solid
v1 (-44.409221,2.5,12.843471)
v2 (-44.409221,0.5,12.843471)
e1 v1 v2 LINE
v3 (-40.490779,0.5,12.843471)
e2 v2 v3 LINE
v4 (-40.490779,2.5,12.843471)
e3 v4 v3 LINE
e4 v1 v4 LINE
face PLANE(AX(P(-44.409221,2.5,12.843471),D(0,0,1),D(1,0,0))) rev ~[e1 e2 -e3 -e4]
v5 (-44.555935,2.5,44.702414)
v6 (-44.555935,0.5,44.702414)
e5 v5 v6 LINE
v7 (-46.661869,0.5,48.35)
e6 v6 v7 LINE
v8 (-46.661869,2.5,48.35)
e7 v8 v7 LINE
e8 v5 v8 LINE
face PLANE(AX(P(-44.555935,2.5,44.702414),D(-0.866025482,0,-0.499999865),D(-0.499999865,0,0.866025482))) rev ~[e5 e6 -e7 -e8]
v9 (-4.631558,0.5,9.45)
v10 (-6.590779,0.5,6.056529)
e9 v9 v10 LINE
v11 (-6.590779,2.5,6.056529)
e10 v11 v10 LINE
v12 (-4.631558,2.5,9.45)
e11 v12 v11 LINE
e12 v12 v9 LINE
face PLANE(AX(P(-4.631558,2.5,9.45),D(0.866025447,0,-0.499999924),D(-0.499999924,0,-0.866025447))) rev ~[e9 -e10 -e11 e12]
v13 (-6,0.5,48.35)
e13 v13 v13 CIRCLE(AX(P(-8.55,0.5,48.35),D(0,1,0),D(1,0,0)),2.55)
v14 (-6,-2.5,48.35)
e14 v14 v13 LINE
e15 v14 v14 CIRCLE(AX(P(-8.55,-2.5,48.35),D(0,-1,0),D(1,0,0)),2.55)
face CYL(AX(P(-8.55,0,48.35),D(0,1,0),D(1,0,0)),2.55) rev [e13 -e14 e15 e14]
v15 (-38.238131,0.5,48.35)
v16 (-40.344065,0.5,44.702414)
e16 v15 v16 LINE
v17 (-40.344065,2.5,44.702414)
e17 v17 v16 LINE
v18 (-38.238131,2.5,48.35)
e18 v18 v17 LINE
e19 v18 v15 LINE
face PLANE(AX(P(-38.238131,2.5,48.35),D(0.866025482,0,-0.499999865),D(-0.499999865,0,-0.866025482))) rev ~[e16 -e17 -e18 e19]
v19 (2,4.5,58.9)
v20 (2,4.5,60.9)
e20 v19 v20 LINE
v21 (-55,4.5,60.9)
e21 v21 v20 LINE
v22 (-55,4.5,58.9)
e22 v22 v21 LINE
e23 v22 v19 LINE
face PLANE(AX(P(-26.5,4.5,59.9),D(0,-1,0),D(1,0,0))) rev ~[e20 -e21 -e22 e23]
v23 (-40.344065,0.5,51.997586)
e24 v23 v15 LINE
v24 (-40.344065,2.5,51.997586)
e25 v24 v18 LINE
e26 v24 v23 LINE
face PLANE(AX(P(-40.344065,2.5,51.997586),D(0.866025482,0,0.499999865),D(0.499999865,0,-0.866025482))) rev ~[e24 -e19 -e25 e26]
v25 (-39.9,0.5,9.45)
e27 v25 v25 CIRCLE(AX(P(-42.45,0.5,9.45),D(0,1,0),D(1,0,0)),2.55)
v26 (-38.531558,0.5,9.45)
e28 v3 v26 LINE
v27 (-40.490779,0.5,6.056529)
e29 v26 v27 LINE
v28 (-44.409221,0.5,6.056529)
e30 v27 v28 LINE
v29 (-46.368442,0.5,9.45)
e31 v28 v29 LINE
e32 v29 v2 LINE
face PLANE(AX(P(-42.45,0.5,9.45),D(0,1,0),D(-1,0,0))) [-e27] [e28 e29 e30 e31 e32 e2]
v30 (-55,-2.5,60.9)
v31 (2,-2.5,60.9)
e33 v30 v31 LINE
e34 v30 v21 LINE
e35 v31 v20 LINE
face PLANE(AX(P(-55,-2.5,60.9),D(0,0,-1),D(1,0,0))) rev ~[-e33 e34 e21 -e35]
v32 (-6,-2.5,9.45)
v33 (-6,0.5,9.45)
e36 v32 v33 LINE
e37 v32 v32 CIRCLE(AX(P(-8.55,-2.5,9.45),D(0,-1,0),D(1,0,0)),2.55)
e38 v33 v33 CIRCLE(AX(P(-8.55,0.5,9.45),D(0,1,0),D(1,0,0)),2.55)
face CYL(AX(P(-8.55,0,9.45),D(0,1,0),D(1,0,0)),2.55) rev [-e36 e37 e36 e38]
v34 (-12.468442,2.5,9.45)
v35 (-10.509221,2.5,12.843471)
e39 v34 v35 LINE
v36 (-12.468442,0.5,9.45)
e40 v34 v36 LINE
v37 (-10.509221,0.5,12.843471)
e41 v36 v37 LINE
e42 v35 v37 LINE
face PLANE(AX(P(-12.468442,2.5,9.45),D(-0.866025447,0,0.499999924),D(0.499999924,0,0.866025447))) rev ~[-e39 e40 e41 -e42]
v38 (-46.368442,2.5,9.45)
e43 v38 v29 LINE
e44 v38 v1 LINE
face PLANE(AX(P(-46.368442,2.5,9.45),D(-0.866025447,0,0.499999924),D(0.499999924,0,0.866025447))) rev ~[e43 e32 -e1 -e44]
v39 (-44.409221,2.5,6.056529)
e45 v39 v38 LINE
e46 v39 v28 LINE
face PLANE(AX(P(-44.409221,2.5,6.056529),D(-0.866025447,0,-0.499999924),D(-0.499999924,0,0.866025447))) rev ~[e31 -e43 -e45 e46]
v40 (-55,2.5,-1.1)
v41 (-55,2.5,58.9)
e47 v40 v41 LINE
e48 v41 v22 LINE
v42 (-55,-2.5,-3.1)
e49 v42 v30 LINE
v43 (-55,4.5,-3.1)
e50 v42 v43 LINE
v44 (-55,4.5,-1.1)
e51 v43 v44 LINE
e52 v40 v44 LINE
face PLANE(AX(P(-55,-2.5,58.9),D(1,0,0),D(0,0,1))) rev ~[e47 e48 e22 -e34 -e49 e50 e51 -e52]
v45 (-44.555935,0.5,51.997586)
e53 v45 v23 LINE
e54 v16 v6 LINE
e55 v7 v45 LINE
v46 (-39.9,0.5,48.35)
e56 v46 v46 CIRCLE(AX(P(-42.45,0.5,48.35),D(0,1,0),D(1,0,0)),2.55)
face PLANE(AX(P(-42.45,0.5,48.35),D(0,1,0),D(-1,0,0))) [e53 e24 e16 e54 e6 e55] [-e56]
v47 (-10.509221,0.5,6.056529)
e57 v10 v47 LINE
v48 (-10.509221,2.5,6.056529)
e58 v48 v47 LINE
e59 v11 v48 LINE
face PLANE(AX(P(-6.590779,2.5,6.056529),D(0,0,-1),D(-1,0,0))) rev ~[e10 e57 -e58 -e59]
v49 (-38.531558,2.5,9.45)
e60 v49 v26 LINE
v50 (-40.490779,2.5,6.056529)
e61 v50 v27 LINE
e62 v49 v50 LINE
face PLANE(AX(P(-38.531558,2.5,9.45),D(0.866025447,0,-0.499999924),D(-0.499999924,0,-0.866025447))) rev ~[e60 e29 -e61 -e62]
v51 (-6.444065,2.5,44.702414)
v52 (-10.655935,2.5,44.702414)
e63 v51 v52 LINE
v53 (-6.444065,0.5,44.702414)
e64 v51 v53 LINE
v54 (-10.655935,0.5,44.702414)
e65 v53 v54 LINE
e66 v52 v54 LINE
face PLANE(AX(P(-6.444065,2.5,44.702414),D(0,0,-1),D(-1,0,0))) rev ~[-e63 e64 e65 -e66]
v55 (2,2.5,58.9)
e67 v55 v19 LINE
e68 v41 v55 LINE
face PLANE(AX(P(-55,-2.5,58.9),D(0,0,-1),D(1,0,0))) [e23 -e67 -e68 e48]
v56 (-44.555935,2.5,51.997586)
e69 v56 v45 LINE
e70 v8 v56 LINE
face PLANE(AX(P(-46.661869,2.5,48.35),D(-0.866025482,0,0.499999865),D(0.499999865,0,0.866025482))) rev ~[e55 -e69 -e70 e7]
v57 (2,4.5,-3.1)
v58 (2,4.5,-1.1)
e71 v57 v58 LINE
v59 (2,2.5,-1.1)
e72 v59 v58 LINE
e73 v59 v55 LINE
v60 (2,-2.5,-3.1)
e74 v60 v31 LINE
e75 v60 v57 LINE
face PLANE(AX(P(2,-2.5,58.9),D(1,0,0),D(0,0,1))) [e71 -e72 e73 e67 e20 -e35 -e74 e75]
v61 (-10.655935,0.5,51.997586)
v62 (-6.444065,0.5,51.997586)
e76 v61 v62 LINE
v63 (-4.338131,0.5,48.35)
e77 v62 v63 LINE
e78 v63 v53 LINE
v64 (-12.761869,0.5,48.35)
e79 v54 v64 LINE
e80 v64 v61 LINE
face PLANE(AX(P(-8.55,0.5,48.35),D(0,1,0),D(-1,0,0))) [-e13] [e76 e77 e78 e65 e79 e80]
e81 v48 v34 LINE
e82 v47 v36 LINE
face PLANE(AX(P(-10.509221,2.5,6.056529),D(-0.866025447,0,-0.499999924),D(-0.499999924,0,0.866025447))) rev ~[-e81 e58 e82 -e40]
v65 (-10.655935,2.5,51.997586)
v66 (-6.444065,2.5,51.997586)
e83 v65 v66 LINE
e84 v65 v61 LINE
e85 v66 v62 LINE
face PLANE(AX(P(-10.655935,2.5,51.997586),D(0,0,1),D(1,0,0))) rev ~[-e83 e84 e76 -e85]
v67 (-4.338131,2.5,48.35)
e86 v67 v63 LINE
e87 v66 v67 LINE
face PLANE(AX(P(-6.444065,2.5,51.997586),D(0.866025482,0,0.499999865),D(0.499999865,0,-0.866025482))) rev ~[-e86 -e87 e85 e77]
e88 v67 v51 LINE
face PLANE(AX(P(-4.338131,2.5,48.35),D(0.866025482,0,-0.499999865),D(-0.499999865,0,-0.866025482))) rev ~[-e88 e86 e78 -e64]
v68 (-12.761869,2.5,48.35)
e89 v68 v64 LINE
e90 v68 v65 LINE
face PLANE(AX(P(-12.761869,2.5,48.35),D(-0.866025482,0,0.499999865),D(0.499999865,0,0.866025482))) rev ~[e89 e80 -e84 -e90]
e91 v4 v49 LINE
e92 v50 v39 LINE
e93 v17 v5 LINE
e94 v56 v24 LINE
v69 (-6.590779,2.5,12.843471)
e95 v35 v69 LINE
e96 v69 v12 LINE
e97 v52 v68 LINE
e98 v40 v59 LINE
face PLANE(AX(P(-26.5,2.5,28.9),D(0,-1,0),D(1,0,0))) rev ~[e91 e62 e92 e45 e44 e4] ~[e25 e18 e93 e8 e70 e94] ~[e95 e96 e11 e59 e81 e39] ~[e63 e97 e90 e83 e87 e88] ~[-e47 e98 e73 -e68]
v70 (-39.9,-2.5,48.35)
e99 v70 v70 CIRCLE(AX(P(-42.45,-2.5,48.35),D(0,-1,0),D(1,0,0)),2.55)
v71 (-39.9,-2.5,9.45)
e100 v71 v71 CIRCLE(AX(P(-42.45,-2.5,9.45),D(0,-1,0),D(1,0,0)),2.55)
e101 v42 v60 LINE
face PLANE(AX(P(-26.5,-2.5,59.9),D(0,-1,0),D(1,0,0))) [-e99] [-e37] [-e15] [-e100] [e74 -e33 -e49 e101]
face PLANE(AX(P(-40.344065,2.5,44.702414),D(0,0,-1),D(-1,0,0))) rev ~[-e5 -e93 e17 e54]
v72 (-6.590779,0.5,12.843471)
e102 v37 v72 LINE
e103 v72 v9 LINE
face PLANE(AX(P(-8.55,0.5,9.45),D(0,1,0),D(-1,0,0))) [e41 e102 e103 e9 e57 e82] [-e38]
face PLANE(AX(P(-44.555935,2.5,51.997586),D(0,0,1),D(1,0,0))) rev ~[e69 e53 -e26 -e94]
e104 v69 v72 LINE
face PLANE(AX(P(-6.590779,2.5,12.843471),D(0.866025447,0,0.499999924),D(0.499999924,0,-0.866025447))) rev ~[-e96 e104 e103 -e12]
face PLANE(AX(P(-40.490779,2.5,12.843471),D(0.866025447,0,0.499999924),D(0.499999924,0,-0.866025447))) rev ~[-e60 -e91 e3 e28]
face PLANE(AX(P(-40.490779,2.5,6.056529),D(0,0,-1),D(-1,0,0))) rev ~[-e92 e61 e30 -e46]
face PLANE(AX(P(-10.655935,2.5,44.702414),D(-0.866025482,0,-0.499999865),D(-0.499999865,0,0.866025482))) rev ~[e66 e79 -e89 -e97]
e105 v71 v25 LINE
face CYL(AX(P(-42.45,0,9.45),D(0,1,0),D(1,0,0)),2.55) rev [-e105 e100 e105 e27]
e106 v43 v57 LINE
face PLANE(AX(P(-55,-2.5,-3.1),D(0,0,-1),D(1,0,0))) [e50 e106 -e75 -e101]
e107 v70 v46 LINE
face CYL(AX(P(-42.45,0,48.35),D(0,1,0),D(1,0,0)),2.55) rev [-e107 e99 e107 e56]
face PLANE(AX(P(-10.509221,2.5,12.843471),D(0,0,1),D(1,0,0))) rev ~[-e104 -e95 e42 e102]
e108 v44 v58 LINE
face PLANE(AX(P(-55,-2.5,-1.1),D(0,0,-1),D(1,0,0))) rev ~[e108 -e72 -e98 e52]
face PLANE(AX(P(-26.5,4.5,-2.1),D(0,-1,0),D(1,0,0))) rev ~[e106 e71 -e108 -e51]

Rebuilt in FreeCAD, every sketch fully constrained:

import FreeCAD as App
import Part
import Sketcher
from FreeCAD import Vector
Q = App.Units.Quantity

doc = App.newDocument("Part")
body = doc.addObject("PartDesign::Body", "Body")

sketch1 = body.newObject("Sketcher::SketchObject", "Sketch")
sketch1.AttachmentSupport = (doc.getObject("XZ_Plane"), [""])
sketch1.MapMode = "FlatFace"
sketch1.addGeometry([
    Part.LineSegment(Vector(-55, 58.9, 0), Vector(-55, -1.1, 0)),
    Part.LineSegment(Vector(-55, -1.1, 0), Vector(2, -1.1, 0)),
    Part.LineSegment(Vector(2, -1.1, 0), Vector(2, 58.9, 0)),
    Part.LineSegment(Vector(2, 58.9, 0), Vector(-55, 58.9, 0)),
    Part.Circle(Vector(-42.45, 9.45, 0), Vector(0, 0, 1), 2.55),
    Part.Circle(Vector(-8.55, 9.45, 0), Vector(0, 0, 1), 2.55),
    Part.Circle(Vector(-42.45, 48.35, 0), Vector(0, 0, 1), 2.55),
    Part.Circle(Vector(-8.55, 48.35, 0), Vector(0, 0, 1), 2.55),
], False)
sketch1.addConstraint([
    Sketcher.Constraint("Coincident", 0, 2, 1, 1),
    Sketcher.Constraint("Coincident", 1, 2, 2, 1),
    Sketcher.Constraint("Coincident", 2, 2, 3, 1),
    Sketcher.Constraint("Coincident", 3, 2, 0, 1),
    Sketcher.Constraint("Vertical", 0),
    Sketcher.Constraint("Horizontal", 1),
    Sketcher.Constraint("Vertical", 2),
    Sketcher.Constraint("Horizontal", 3),
    Sketcher.Constraint("Equal", 4, 5),
    Sketcher.Constraint("Equal", 5, 6),
    Sketcher.Constraint("Equal", 6, 7),
    Sketcher.Constraint("Horizontal", 4, 3, 5, 3),
    Sketcher.Constraint("Horizontal", 6, 3, 7, 3),
    Sketcher.Constraint("Vertical", 4, 3, 6, 3),
    Sketcher.Constraint("Vertical", 5, 3, 7, 3),
    Sketcher.Constraint("Diameter", 4, 5.1),
    Sketcher.Constraint("DistanceX", 1, 1, 1, 2, 57.0),
    Sketcher.Constraint("DistanceY", 0, 2, 0, 1, 60.0),
    Sketcher.Constraint("DistanceX", 0, 2, -1, 1, 55.0),
    Sketcher.Constraint("DistanceY", 0, 2, -1, 1, 1.1),
    Sketcher.Constraint("DistanceX", 4, 3, 5, 3, 33.9),
    Sketcher.Constraint("DistanceY", 4, 3, 6, 3, 38.9),
    Sketcher.Constraint("DistanceX", 4, 3, -1, 1, 42.45),
    Sketcher.Constraint("DistanceY", -1, 1, 4, 3, 9.45),
])
pad1 = body.newObject("PartDesign::Pad", "Pad")
pad1.Profile = sketch1
pad1.Length = 5
pad1.Midplane = True

sketch2 = body.newObject("Sketcher::SketchObject", "Sketch001")
sketch2.AttachmentSupport = (doc.getObject("XZ_Plane"), [""])
sketch2.MapMode = "FlatFace"
sketch2.AttachmentOffset = App.Placement(Vector(0, 0, 2.5), App.Rotation())
sketch2.addGeometry([
    Part.LineSegment(Vector(-55, 60.9, 0), Vector(-55, 58.9, 0)),
    Part.LineSegment(Vector(-55, 58.9, 0), Vector(2, 58.9, 0)),
    Part.LineSegment(Vector(2, 58.9, 0), Vector(2, 60.9, 0)),
    Part.LineSegment(Vector(2, 60.9, 0), Vector(-55, 60.9, 0)),
    Part.LineSegment(Vector(-55, -1.1, 0), Vector(-55, -3.1, 0)),
    Part.LineSegment(Vector(-55, -3.1, 0), Vector(2, -3.1, 0)),
    Part.LineSegment(Vector(2, -3.1, 0), Vector(2, -1.1, 0)),
    Part.LineSegment(Vector(2, -1.1, 0), Vector(-55, -1.1, 0)),
], False)
sketch2.addConstraint([
    Sketcher.Constraint("Coincident", 0, 2, 1, 1),
    Sketcher.Constraint("Coincident", 1, 2, 2, 1),
    Sketcher.Constraint("Coincident", 2, 2, 3, 1),
    Sketcher.Constraint("Coincident", 3, 2, 0, 1),
    Sketcher.Constraint("Coincident", 4, 2, 5, 1),
    Sketcher.Constraint("Coincident", 5, 2, 6, 1),
    Sketcher.Constraint("Coincident", 6, 2, 7, 1),
    Sketcher.Constraint("Coincident", 7, 2, 4, 1),
    Sketcher.Constraint("Vertical", 0),
    Sketcher.Constraint("Horizontal", 1),
    Sketcher.Constraint("Vertical", 2),
    Sketcher.Constraint("Horizontal", 3),
    Sketcher.Constraint("Vertical", 4),
    Sketcher.Constraint("Horizontal", 5),
    Sketcher.Constraint("Vertical", 6),
    Sketcher.Constraint("Horizontal", 7),
    Sketcher.Constraint("Vertical", 3, 2, 4, 2),
    Sketcher.Constraint("Vertical", 2, 2, 5, 2),
    Sketcher.Constraint("Equal", 2, 4),
    Sketcher.Constraint("DistanceX", 1, 1, 1, 2, 57.0),
    Sketcher.Constraint("DistanceY", 0, 2, 0, 1, 2.0),
    Sketcher.Constraint("DistanceX", 0, 2, -1, 1, 55.0),
    Sketcher.Constraint("DistanceY", 4, 2, 0, 2, 62.0),
    Sketcher.Constraint("DistanceY", -1, 1, 0, 2, 58.9),
])
pad2 = body.newObject("PartDesign::Pad", "Pad001")
pad2.Profile = sketch2
pad2.Length = 7
pad2.Reversed = True

sketch3 = body.newObject("Sketcher::SketchObject", "Sketch002")
sketch3.AttachmentSupport = (doc.getObject("XZ_Plane"), [""])
sketch3.MapMode = "FlatFace"
sketch3.AttachmentOffset = App.Placement(Vector(0, 0, -2.5), App.Rotation())
sketch3.addGeometry([
    Part.LineSegment(Vector(-40.490779, 6.056529, 0), Vector(-44.409221, 6.056529, 0)),
    Part.LineSegment(Vector(-44.409221, 6.056529, 0), Vector(-46.368442, 9.45, 0)),
    Part.LineSegment(Vector(-46.368442, 9.45, 0), Vector(-44.409221, 12.843471, 0)),
    Part.LineSegment(Vector(-44.409221, 12.843471, 0), Vector(-40.490779, 12.843471, 0)),
    Part.LineSegment(Vector(-40.490779, 12.843471, 0), Vector(-38.531558, 9.45, 0)),
    Part.LineSegment(Vector(-38.531558, 9.45, 0), Vector(-40.490779, 6.056529, 0)),
    Part.Circle(Vector(-42.45, 9.45, 0), Vector(0, 0, 1), 2.55),
    Part.LineSegment(Vector(-6.590779, 6.056529, 0), Vector(-10.509221, 6.056529, 0)),
    Part.LineSegment(Vector(-10.509221, 6.056529, 0), Vector(-12.468442, 9.45, 0)),
    Part.LineSegment(Vector(-12.468442, 9.45, 0), Vector(-10.509221, 12.843471, 0)),
    Part.LineSegment(Vector(-10.509221, 12.843471, 0), Vector(-6.590779, 12.843471, 0)),
    Part.LineSegment(Vector(-6.590779, 12.843471, 0), Vector(-4.631558, 9.45, 0)),
    Part.LineSegment(Vector(-4.631558, 9.45, 0), Vector(-6.590779, 6.056529, 0)),
    Part.Circle(Vector(-8.55, 9.45, 0), Vector(0, 0, 1), 2.55),
    Part.LineSegment(Vector(-6.444065, 44.702414, 0), Vector(-10.655935, 44.702414, 0)),
    Part.LineSegment(Vector(-10.655935, 44.702414, 0), Vector(-12.761869, 48.35, 0)),
    Part.LineSegment(Vector(-12.761869, 48.35, 0), Vector(-10.655935, 51.997586, 0)),
    Part.LineSegment(Vector(-10.655935, 51.997586, 0), Vector(-6.444065, 51.997586, 0)),
    Part.LineSegment(Vector(-6.444065, 51.997586, 0), Vector(-4.338131, 48.35, 0)),
    Part.LineSegment(Vector(-4.338131, 48.35, 0), Vector(-6.444065, 44.702414, 0)),
    Part.Circle(Vector(-8.55, 48.35, 0), Vector(0, 0, 1), 2.55),
    Part.LineSegment(Vector(-40.344065, 44.702414, 0), Vector(-44.555935, 44.702414, 0)),
    Part.LineSegment(Vector(-44.555935, 44.702414, 0), Vector(-46.661869, 48.35, 0)),
    Part.LineSegment(Vector(-46.661869, 48.35, 0), Vector(-44.555935, 51.997586, 0)),
    Part.LineSegment(Vector(-44.555935, 51.997586, 0), Vector(-40.344065, 51.997586, 0)),
    Part.LineSegment(Vector(-40.344065, 51.997586, 0), Vector(-38.238131, 48.35, 0)),
    Part.LineSegment(Vector(-38.238131, 48.35, 0), Vector(-40.344065, 44.702414, 0)),
    Part.Circle(Vector(-42.45, 48.35, 0), Vector(0, 0, 1), 2.55),
], False)
sketch3.addConstraint([
    Sketcher.Constraint("Coincident", 0, 2, 1, 1),
    Sketcher.Constraint("Coincident", 1, 2, 2, 1),
    Sketcher.Constraint("Coincident", 2, 2, 3, 1),
    Sketcher.Constraint("Coincident", 3, 2, 4, 1),
    Sketcher.Constraint("Coincident", 4, 2, 5, 1),
    Sketcher.Constraint("Coincident", 5, 2, 0, 1),
    Sketcher.Constraint("Coincident", 7, 2, 8, 1),
    Sketcher.Constraint("Coincident", 8, 2, 9, 1),
    Sketcher.Constraint("Coincident", 9, 2, 10, 1),
    Sketcher.Constraint("Coincident", 10, 2, 11, 1),
    Sketcher.Constraint("Coincident", 11, 2, 12, 1),
    Sketcher.Constraint("Coincident", 12, 2, 7, 1),
    Sketcher.Constraint("Coincident", 14, 2, 15, 1),
    Sketcher.Constraint("Coincident", 15, 2, 16, 1),
    Sketcher.Constraint("Coincident", 16, 2, 17, 1),
    Sketcher.Constraint("Coincident", 17, 2, 18, 1),
    Sketcher.Constraint("Coincident", 18, 2, 19, 1),
    Sketcher.Constraint("Coincident", 19, 2, 14, 1),
    Sketcher.Constraint("Coincident", 21, 2, 22, 1),
    Sketcher.Constraint("Coincident", 22, 2, 23, 1),
    Sketcher.Constraint("Coincident", 23, 2, 24, 1),
    Sketcher.Constraint("Coincident", 24, 2, 25, 1),
    Sketcher.Constraint("Coincident", 25, 2, 26, 1),
    Sketcher.Constraint("Coincident", 26, 2, 21, 1),
    Sketcher.Constraint("Horizontal", 0),
    Sketcher.Constraint("Horizontal", 3),
    Sketcher.Constraint("Horizontal", 7),
    Sketcher.Constraint("Horizontal", 10),
    Sketcher.Constraint("Horizontal", 14),
    Sketcher.Constraint("Horizontal", 17),
    Sketcher.Constraint("Horizontal", 21),
    Sketcher.Constraint("Horizontal", 24),
    Sketcher.Constraint("Equal", 6, 13),
    Sketcher.Constraint("Equal", 13, 20),
    Sketcher.Constraint("Equal", 20, 27),
    Sketcher.Constraint("Parallel", 1, 4),
    Sketcher.Constraint("Parallel", 2, 5),
    Sketcher.Constraint("Parallel", 4, 8),
    Sketcher.Constraint("Parallel", 5, 9),
    Sketcher.Constraint("Parallel", 8, 11),
    Sketcher.Constraint("Parallel", 9, 12),
    Sketcher.Constraint("Parallel", 11, 15),
    Sketcher.Constraint("Parallel", 12, 16),
    Sketcher.Constraint("Parallel", 15, 18),
    Sketcher.Constraint("Parallel", 16, 19),
    Sketcher.Constraint("Parallel", 18, 22),
    Sketcher.Constraint("Parallel", 19, 23),
    Sketcher.Constraint("Parallel", 22, 25),
    Sketcher.Constraint("Parallel", 23, 26),
    Sketcher.Constraint("Horizontal", 6, 3, 13, 3),
    Sketcher.Constraint("Horizontal", 20, 3, 27, 3),
    Sketcher.Constraint("Horizontal", 13, 3, 1, 2),
    Sketcher.Constraint("Horizontal", 1, 2, 4, 2),
    Sketcher.Constraint("Horizontal", 5, 2, 7, 2),
    Sketcher.Constraint("Horizontal", 4, 2, 8, 2),
    Sketcher.Constraint("Horizontal", 3, 2, 9, 2),
    Sketcher.Constraint("Horizontal", 8, 2, 11, 2),
    Sketcher.Constraint("Horizontal", 27, 3, 15, 2),
    Sketcher.Constraint("Horizontal", 15, 2, 18, 2),
    Sketcher.Constraint("Horizontal", 19, 2, 21, 2),
    Sketcher.Constraint("Horizontal", 18, 2, 22, 2),
    Sketcher.Constraint("Horizontal", 17, 2, 23, 2),
    Sketcher.Constraint("Horizontal", 22, 2, 25, 2),
    Sketcher.Constraint("Vertical", 13, 3, 20, 3),
    Sketcher.Constraint("Vertical", 6, 3, 27, 3),
    Sketcher.Constraint("Vertical", 0, 2, 2, 2),
    Sketcher.Constraint("Vertical", 3, 2, 5, 2),
    Sketcher.Constraint("Vertical", 14, 2, 16, 2),
    Sketcher.Constraint("Equal", 3, 7),
    Sketcher.Constraint("Equal", 17, 21),
    Sketcher.Constraint("Diameter", 6, 5.1),
    Sketcher.Constraint("Angle", 1, Q("119.999995 deg")),
    Sketcher.Constraint("DistanceX", 6, 3, 13, 3, 33.9),
    Sketcher.Constraint("DistanceY", 13, 3, 20, 3, 38.9),
    Sketcher.Constraint("DistanceX", 21, 2, 14, 2, 33.9),
    Sketcher.Constraint("DistanceX", 6, 3, -1, 1, 42.45),
    Sketcher.Constraint("DistanceY", -1, 1, 6, 3, 9.45),
    Sketcher.Constraint("DistanceX", 0, 2, 0, 1, 3.918442),
    Sketcher.Constraint("DistanceX", 14, 2, 14, 1, 4.21187),
    Sketcher.Constraint("Distance", 15, 4.211869),
    Sketcher.Constraint("DistanceX", 0, 2, -1, 1, 44.409221),
    Sketcher.Constraint("DistanceY", -1, 1, 0, 2, 6.056529),
    Sketcher.Constraint("DistanceX", 7, 2, -1, 1, 10.509221),
    Sketcher.Constraint("DistanceX", 15, 2, -1, 1, 12.761869),
])
pocket1 = body.newObject("PartDesign::Pocket", "Pocket")
pocket1.Profile = sketch3
pocket1.Length = 2
pocket1.Reversed = True

doc.recompute()
